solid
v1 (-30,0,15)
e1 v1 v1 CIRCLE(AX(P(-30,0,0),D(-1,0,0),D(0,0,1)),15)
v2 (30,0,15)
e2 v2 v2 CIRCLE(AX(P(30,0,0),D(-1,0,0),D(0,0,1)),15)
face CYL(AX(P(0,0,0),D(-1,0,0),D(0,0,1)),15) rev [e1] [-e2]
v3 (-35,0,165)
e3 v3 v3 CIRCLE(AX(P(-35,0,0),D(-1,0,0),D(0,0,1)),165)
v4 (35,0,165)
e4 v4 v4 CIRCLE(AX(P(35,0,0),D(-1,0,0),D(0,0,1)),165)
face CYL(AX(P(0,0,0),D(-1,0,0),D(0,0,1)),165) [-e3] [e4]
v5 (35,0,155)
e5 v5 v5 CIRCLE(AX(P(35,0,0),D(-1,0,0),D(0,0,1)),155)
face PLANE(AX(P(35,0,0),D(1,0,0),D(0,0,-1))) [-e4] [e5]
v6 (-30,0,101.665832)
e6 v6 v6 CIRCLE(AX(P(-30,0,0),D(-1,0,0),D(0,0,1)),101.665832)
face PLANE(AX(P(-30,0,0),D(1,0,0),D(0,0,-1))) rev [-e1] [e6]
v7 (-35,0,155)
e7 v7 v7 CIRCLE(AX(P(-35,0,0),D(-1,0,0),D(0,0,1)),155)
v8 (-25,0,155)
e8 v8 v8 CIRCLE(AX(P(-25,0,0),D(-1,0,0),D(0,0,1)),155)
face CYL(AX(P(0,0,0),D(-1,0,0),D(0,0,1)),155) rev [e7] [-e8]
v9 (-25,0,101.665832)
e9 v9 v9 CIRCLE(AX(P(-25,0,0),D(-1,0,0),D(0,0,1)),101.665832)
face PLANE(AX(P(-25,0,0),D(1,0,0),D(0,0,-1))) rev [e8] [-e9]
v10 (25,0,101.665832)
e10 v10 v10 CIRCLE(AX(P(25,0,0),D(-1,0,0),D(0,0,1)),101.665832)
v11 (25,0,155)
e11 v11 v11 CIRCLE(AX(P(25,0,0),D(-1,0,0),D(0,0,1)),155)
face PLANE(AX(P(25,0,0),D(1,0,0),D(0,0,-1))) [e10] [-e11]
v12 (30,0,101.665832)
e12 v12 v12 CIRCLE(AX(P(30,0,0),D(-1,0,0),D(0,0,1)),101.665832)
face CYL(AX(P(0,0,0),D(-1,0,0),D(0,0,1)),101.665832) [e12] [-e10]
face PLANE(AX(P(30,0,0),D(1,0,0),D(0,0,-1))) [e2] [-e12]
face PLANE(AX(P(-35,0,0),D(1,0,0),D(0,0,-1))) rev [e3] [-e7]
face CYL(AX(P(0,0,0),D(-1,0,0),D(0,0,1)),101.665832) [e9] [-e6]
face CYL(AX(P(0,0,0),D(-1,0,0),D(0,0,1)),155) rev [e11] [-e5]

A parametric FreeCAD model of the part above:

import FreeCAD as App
import Part
import Sketcher
from FreeCAD import Vector
Q = App.Units.Quantity


def add_polygon(sketch, points):
    """Adds a closed chain of lines whose ends are joined by coincident constraints."""
    first, n = sketch.GeometryCount, len(points)
    for a, b in zip(points, points[1:] + points[:1]):
        sketch.addGeometry(Part.LineSegment(App.Vector(*a, 0), App.Vector(*b, 0)), False)
    for i in range(n):
        sketch.addConstraint(Sketcher.Constraint("Coincident", first + i, 2, first + (i + 1) % n, 1))

doc = App.newDocument("Part")
body = doc.addObject("PartDesign::Body", "Body")

sketch1 = body.newObject("Sketcher::SketchObject", "Sketch")
sketch1.AttachmentSupport = (doc.getObject("XY_Plane"), [""])
sketch1.MapMode = "FlatFace"
add_polygon(sketch1, [(-35, 165), (-35, 155), (-25, 155), (-25, 102), (-30, 102), (-30, 15), (30, 15), (30, 102), (25, 102), (25, 155), (35, 155), (35, 165)])
sketch1.addConstraint(Sketcher.Constraint("Vertical", 0))
sketch1.addConstraint(Sketcher.Constraint("Horizontal", 1))
sketch1.addConstraint(Sketcher.Constraint("Vertical", 2))
sketch1.addConstraint(Sketcher.Constraint("Horizontal", 3))
sketch1.addConstraint(Sketcher.Constraint("Vertical", 4))
sketch1.addConstraint(Sketcher.Constraint("Horizontal", 5))
sketch1.addConstraint(Sketcher.Constraint("Vertical", 6))
sketch1.addConstraint(Sketcher.Constraint("Horizontal", 7))
sketch1.addConstraint(Sketcher.Constraint("Vertical", 8))
sketch1.addConstraint(Sketcher.Constraint("Horizontal", 9))
sketch1.addConstraint(Sketcher.Constraint("Vertical", 10))
sketch1.addConstraint(Sketcher.Constraint("Horizontal", 11))
sketch1.addConstraint(Sketcher.Constraint("Symmetric", 3, 2, 6, 2, -2))
sketch1.addConstraint(Sketcher.Constraint("Symmetric", 1, 2, 8, 2, -2))
sketch1.addConstraint(Sketcher.Constraint("Equal", 1, 9))
sketch1.addConstraint(Sketcher.Constraint("Equal", 9, 0))
sketch1.addConstraint(Sketcher.Constraint("DistanceX", 1, 1, 1, 2, Q("10 mm")))
sketch1.addConstraint(Sketcher.Constraint("DistanceX", 3, 2, 3, 1, Q("5 mm")))
sketch1.addConstraint(Sketcher.Constraint("DistanceX", 5, 1, 5, 2, Q("60 mm")))
sketch1.addConstraint(Sketcher.Constraint("DistanceY", -1, 1, 0, 2, Q("155 mm")))
sketch1.addConstraint(Sketcher.Constraint("DistanceY", -1, 1, 4, 2, Q("15 mm")))
sketch1.addConstraint(Sketcher.Constraint("DistanceY", 2, 2, 2, 1, Q("53.334168 mm")))
revolution = body.newObject("PartDesign::Revolution", "Revolution")
revolution.Profile = sketch1
revolution.ReferenceAxis = (sketch1, ["H_Axis"])
revolution.Angle = 360

doc.recompute()
